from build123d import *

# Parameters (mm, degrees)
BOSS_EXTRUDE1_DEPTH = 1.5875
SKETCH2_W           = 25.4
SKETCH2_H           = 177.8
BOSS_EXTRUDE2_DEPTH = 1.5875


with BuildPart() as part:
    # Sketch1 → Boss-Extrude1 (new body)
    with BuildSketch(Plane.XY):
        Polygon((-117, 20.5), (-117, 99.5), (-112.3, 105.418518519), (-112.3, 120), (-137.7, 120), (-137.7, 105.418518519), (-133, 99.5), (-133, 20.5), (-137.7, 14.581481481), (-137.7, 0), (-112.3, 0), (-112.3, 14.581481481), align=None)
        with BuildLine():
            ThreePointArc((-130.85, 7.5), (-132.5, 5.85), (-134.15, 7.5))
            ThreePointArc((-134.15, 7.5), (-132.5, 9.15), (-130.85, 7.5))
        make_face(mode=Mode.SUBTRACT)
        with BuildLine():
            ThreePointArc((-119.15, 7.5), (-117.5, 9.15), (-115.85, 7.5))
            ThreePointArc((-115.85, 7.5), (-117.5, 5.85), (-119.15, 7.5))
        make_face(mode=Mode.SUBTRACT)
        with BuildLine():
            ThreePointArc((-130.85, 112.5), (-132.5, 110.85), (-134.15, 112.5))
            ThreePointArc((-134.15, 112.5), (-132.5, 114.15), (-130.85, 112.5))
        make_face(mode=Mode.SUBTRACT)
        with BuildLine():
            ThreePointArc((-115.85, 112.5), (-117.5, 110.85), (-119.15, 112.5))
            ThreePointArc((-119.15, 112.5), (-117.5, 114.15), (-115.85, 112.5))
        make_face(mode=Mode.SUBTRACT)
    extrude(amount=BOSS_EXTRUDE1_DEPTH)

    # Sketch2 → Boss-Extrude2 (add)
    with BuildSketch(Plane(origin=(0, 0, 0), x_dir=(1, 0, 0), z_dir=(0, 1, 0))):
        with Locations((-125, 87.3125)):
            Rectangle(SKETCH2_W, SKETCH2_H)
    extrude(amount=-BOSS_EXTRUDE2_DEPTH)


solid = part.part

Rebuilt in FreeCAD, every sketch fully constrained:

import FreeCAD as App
import Part
import Sketcher

V = App.Vector
Q = App.Units.Quantity


def add_polygon(sketch, points):
    """Adds a closed chain of lines whose ends are joined by coincident constraints."""
    first, n = sketch.GeometryCount, len(points)
    for a, b in zip(points, points[1:] + points[:1]):
        sketch.addGeometry(Part.LineSegment(App.Vector(*a, 0), App.Vector(*b, 0)), False)
    for i in range(n):
        sketch.addConstraint(Sketcher.Constraint("Coincident", first + i, 2, first + (i + 1) % n, 1))

doc = App.newDocument("Part")
body = doc.addObject("PartDesign::Body", "Body")

# Sketch on XY plane
sketch1 = doc.addObject("Sketcher::SketchObject", "Sketch")
body.addObject(sketch1)
sketch1.AttachmentSupport = (doc.XY_Plane, [""])
sketch1.MapMode = "FlatFace"
add_polygon(sketch1, [(-117, 20.5), (-117, 99.5), (-112.3, 105.418519), (-112.3, 120), (-137.7, 120), (-137.7, 105.418519), (-133, 99.5), (-133, 20.5), (-137.7, 14.581481), (-137.7, 0), (-112.3, 0), (-112.3, 14.581481)])  # lines 0-11
sketch1.addGeometry(Part.Circle(V(-132.5, 7.5, 0), V(0, 0, 1), 1.65), False)  # 12
sketch1.addGeometry(Part.Circle(V(-117.5, 7.5, 0), V(0, 0, 1), 1.65), False)  # 13
sketch1.addGeometry(Part.Circle(V(-132.5, 112.5, 0), V(0, 0, 1), 1.65), False)  # 14
sketch1.addGeometry(Part.Circle(V(-117.5, 112.5, 0), V(0, 0, 1), 1.65), False)  # 15
sketch1.addConstraint(Sketcher.Constraint("Vertical", 0))
sketch1.addConstraint(Sketcher.Constraint("Vertical", 2))
sketch1.addConstraint(Sketcher.Constraint("Horizontal", 3))
sketch1.addConstraint(Sketcher.Constraint("Vertical", 4))
sketch1.addConstraint(Sketcher.Constraint("Vertical", 6))
sketch1.addConstraint(Sketcher.Constraint("Vertical", 8))
sketch1.addConstraint(Sketcher.Constraint("Horizontal", 9))
sketch1.addConstraint(Sketcher.Constraint("Vertical", 10))
sketch1.addConstraint(Sketcher.Constraint("Equal", 12, 13))
sketch1.addConstraint(Sketcher.Constraint("Equal", 13, 14))
sketch1.addConstraint(Sketcher.Constraint("Equal", 14, 15))
sketch1.addConstraint(Sketcher.Constraint("PointOnObject", 8, 2, -1))
sketch1.addConstraint(Sketcher.Constraint("Parallel", 1, 7))
sketch1.addConstraint(Sketcher.Constraint("Parallel", 5, 11))
sketch1.addConstraint(Sketcher.Constraint("Horizontal", 12, 3, 13, 3))
sketch1.addConstraint(Sketcher.Constraint("Horizontal", 14, 3, 15, 3))
sketch1.addConstraint(Sketcher.Constraint("Horizontal", 1, 2, 4, 2))
sketch1.addConstraint(Sketcher.Constraint("Horizontal", 0, 2, 5, 2))
sketch1.addConstraint(Sketcher.Constraint("Horizontal", 7, 2, 10, 2))
sketch1.addConstraint(Sketcher.Constraint("Horizontal", 6, 2, 11, 2))
sketch1.addConstraint(Sketcher.Constraint("Vertical", 12, 3, 14, 3))
sketch1.addConstraint(Sketcher.Constraint("Vertical", 13, 3, 15, 3))
sketch1.addConstraint(Sketcher.Constraint("Vertical", 4, 2, 7, 2))
sketch1.addConstraint(Sketcher.Constraint("Vertical", 2, 2, 9, 2))
sketch1.addConstraint(Sketcher.Constraint("Equal", 4, 8))
sketch1.addConstraint(Sketcher.Constraint("DistanceX", 3, 2, 3, 1, Q("1 in")))
sketch1.addConstraint(Sketcher.Constraint("Diameter", 12, Q("3.3 mm")))
sketch1.addConstraint(Sketcher.Constraint("DistanceY", 0, 1, 0, 2, Q("79 mm")))
sketch1.addConstraint(Sketcher.Constraint("DistanceY", 2, 1, 2, 2, Q("14.581481 mm")))
sketch1.addConstraint(Sketcher.Constraint("DistanceX", 12, 3, -1, 1, Q("132.5 mm")))
sketch1.addConstraint(Sketcher.Constraint("DistanceY", -1, 1, 12, 3, Q("7.5 mm")))
sketch1.addConstraint(Sketcher.Constraint("DistanceX", 13, 3, -1, 1, Q("117.5 mm")))
sketch1.addConstraint(Sketcher.Constraint("DistanceY", -1, 1, 14, 3, Q("112.5 mm")))
sketch1.addConstraint(Sketcher.Constraint("DistanceX", 0, 2, -1, 1, Q("117 mm")))
sketch1.addConstraint(Sketcher.Constraint("DistanceY", -1, 1, 0, 2, Q("99.5 mm")))
sketch1.addConstraint(Sketcher.Constraint("DistanceX", 1, 2, -1, 1, Q("112.3 mm")))
pad1 = doc.addObject("PartDesign::Pad", "Pad")
body.addObject(pad1)
pad1.Profile = sketch1
pad1.Length = Q("0.0625 in")

# Sketch on XZ plane
sketch2 = doc.addObject("Sketcher::SketchObject", "Sketch001")
body.addObject(sketch2)
sketch2.AttachmentSupport = (doc.XZ_Plane, [""])
sketch2.MapMode = "FlatFace"
add_polygon(sketch2, [(-137.7, -176.2125), (-137.7, 1.5875), (-112.3, 1.5875), (-112.3, -176.2125)])  # lines 0-3
sketch2.addConstraint(Sketcher.Constraint("Vertical", 0))
sketch2.addConstraint(Sketcher.Constraint("Horizontal", 1))
sketch2.addConstraint(Sketcher.Constraint("Vertical", 2))
sketch2.addConstraint(Sketcher.Constraint("Horizontal", 3))
sketch2.addConstraint(Sketcher.Constraint("DistanceX", 1, 1, 1, 2, Q("1 in")))
sketch2.addConstraint(Sketcher.Constraint("DistanceY", 0, 1, 0, 2, Q("7 in")))
sketch2.addConstraint(Sketcher.Constraint("DistanceY", -1, 1, 0, 2, Q("0.0625 in")))
sketch2.addConstraint(Sketcher.Constraint("DistanceX", 0, 2, -1, 1, Q("137.7 mm")))
pad2 = doc.addObject("PartDesign::Pad", "Pad001")
body.addObject(pad2)
pad2.Profile = sketch2
pad2.Length = Q("0.0625 in")

doc.recompute()
